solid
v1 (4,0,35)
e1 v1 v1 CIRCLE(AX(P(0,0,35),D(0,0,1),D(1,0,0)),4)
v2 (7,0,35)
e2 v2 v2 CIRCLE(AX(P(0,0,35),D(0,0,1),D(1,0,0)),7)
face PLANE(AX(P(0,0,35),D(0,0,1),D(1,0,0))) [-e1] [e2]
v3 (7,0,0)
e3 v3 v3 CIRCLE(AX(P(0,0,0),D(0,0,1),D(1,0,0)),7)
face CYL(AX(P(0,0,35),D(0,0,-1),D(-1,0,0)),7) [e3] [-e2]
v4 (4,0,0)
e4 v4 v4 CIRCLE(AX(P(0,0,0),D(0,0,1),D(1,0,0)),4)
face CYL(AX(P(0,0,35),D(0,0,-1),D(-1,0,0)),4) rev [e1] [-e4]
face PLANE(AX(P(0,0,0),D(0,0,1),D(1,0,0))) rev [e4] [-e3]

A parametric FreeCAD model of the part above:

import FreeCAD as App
import Part
import Sketcher

V = App.Vector

doc = App.newDocument("Part")
body = doc.addObject("PartDesign::Body", "Body")

# Sketch on XY plane
sketch1 = body.newObject("Sketcher::SketchObject", "Sketch")
sketch1.AttachmentSupport = (doc.getObject("XY_Plane"), [""])
sketch1.MapMode = "FlatFace"
sketch1.addGeometry([
    Part.Circle(V(0, 0, 0), V(0, 0, 1), 7),
    Part.Circle(V(0, 0, 0), V(0, 0, 1), 4),
], False)
sketch1.addConstraint([
    Sketcher.Constraint("Coincident", 0, 3, -1, 1),
    Sketcher.Constraint("Coincident", 1, 3, -1, 1),
    Sketcher.Constraint("Diameter", 0, 14.0),
    Sketcher.Constraint("Diameter", 1, 8.0),
])
pad1 = body.newObject("PartDesign::Pad", "Pad")
pad1.Profile = sketch1
pad1.Length = 35

doc.recompute()
